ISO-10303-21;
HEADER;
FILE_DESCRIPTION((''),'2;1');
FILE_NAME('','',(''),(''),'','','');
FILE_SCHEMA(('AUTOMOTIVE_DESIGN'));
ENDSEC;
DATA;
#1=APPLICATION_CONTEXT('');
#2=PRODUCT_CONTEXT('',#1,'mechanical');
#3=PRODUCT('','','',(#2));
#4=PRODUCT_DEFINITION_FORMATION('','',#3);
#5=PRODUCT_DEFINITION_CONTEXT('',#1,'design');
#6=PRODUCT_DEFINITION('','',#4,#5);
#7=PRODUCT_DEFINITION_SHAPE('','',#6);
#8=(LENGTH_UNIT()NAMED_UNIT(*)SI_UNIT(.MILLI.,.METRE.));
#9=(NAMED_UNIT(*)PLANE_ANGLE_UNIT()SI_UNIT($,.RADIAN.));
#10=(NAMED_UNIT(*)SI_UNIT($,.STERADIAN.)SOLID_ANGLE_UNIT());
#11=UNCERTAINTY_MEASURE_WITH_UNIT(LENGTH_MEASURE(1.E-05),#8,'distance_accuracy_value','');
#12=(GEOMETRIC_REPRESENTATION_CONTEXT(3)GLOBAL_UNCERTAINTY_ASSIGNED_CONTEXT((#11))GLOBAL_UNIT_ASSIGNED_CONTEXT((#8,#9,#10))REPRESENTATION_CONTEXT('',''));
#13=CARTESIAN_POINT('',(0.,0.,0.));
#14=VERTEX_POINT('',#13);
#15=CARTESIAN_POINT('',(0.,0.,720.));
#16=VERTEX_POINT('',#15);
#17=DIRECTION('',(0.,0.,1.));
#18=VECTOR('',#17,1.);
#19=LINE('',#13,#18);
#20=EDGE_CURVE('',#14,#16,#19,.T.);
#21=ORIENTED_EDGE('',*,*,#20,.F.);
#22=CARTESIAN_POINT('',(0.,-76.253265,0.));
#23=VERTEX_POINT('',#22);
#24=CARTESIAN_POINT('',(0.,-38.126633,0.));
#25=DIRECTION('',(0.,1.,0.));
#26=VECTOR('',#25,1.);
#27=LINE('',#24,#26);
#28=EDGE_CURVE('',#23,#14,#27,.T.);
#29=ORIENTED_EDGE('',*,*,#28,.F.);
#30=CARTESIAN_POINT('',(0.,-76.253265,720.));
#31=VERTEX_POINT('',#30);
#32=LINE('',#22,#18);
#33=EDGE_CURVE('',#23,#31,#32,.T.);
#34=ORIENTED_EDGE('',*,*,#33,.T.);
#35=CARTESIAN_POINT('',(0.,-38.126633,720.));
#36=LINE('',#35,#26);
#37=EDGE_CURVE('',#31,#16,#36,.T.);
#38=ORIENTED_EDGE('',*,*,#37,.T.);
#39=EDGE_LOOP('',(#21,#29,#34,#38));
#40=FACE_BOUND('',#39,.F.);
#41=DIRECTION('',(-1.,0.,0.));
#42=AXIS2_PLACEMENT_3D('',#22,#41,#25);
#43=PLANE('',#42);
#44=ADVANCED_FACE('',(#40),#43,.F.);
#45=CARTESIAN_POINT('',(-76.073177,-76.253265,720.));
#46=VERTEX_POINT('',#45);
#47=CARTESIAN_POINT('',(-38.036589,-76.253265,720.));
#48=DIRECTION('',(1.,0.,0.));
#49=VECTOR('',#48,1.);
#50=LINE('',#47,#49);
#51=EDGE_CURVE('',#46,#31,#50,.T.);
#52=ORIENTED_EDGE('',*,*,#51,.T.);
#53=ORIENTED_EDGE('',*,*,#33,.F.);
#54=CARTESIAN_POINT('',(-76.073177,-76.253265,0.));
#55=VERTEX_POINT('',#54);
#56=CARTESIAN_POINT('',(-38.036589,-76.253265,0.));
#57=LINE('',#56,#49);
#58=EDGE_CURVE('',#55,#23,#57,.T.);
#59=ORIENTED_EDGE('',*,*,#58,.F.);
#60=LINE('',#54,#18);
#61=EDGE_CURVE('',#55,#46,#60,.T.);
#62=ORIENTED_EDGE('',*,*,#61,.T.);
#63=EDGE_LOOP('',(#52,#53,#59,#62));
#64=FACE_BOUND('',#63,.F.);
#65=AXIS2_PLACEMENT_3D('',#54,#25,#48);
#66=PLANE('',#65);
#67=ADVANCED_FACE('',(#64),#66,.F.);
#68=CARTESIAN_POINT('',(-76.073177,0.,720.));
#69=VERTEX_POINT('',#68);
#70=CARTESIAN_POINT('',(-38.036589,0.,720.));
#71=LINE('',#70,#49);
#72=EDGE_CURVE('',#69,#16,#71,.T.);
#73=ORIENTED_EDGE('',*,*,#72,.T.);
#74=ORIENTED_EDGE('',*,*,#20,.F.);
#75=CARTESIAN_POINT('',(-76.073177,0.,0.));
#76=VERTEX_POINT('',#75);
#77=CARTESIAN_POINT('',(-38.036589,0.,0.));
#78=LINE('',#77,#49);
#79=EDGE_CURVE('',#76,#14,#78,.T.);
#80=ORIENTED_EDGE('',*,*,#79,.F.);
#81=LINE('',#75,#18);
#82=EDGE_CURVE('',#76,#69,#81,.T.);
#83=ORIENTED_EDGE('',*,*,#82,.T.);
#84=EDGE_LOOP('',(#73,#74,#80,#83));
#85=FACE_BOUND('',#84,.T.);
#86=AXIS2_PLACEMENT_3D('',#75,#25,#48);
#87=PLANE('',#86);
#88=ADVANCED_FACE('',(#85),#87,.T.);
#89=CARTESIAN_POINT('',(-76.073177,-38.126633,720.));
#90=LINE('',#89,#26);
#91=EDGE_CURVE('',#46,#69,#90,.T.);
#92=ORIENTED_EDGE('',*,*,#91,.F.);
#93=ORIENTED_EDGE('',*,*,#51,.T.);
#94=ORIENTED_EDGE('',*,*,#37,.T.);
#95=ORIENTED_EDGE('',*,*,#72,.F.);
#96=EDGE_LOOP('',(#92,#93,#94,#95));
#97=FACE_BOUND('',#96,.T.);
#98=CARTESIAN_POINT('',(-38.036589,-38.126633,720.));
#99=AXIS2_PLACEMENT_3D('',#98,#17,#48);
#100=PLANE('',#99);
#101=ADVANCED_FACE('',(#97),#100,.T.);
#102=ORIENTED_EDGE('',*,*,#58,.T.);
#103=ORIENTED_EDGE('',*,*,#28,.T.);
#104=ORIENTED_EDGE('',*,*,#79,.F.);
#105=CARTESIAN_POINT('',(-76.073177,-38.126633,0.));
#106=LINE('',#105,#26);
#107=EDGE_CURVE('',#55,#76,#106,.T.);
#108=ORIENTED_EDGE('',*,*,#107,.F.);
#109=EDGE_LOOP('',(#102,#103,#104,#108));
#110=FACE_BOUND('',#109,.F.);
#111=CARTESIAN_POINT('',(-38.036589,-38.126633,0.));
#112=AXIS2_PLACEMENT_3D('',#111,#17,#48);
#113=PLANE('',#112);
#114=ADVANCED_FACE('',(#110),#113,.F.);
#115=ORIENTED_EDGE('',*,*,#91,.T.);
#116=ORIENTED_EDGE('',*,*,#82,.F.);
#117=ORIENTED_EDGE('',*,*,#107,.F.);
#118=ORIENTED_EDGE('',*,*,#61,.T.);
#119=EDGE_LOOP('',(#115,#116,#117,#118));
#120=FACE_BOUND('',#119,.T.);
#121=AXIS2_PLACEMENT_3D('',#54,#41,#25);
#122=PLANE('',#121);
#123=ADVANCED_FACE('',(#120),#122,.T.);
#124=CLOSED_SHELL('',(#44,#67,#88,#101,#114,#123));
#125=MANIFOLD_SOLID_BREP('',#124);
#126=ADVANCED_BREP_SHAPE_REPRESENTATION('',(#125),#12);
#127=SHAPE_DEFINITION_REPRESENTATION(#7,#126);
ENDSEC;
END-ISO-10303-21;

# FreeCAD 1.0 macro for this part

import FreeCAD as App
import Part
import Sketcher
from FreeCAD import Vector

doc = App.newDocument("Part")
body = doc.addObject("PartDesign::Body", "Body")

# Sketch on XY plane
sketch1 = body.newObject("Sketcher::SketchObject", "Sketch")
sketch1.AttachmentSupport = (doc.getObject("XY_Plane"), [""])
sketch1.MapMode = "FlatFace"
sketch1.addGeometry([
    Part.LineSegment(Vector(-76, 0, 0), Vector(-76, -76, 0)),
    Part.LineSegment(Vector(-76, -76, 0), Vector(0, -76, 0)),
    Part.LineSegment(Vector(0, -76, 0), Vector(0, 0, 0)),
    Part.LineSegment(Vector(0, 0, 0), Vector(-76, 0, 0)),
], False)
sketch1.addConstraint([
    Sketcher.Constraint("Coincident", 0, 2, 1, 1),
    Sketcher.Constraint("Coincident", 1, 2, 2, 1),
    Sketcher.Constraint("Coincident", 2, 2, 3, 1),
    Sketcher.Constraint("Coincident", 3, 2, 0, 1),
    Sketcher.Constraint("Vertical", 0),
    Sketcher.Constraint("Horizontal", 1),
    Sketcher.Constraint("Vertical", 2),
    Sketcher.Constraint("Horizontal", 3),
    Sketcher.Constraint("Coincident", 2, 2, -1, 1),
    Sketcher.Constraint("DistanceX", 1, 1, 1, 2, 76.073177),
    Sketcher.Constraint("DistanceY", 0, 2, 0, 1, 76.253265),
])
pad1 = body.newObject("PartDesign::Pad", "Pad")
pad1.Profile = sketch1
pad1.Length = 720

doc.recompute()
